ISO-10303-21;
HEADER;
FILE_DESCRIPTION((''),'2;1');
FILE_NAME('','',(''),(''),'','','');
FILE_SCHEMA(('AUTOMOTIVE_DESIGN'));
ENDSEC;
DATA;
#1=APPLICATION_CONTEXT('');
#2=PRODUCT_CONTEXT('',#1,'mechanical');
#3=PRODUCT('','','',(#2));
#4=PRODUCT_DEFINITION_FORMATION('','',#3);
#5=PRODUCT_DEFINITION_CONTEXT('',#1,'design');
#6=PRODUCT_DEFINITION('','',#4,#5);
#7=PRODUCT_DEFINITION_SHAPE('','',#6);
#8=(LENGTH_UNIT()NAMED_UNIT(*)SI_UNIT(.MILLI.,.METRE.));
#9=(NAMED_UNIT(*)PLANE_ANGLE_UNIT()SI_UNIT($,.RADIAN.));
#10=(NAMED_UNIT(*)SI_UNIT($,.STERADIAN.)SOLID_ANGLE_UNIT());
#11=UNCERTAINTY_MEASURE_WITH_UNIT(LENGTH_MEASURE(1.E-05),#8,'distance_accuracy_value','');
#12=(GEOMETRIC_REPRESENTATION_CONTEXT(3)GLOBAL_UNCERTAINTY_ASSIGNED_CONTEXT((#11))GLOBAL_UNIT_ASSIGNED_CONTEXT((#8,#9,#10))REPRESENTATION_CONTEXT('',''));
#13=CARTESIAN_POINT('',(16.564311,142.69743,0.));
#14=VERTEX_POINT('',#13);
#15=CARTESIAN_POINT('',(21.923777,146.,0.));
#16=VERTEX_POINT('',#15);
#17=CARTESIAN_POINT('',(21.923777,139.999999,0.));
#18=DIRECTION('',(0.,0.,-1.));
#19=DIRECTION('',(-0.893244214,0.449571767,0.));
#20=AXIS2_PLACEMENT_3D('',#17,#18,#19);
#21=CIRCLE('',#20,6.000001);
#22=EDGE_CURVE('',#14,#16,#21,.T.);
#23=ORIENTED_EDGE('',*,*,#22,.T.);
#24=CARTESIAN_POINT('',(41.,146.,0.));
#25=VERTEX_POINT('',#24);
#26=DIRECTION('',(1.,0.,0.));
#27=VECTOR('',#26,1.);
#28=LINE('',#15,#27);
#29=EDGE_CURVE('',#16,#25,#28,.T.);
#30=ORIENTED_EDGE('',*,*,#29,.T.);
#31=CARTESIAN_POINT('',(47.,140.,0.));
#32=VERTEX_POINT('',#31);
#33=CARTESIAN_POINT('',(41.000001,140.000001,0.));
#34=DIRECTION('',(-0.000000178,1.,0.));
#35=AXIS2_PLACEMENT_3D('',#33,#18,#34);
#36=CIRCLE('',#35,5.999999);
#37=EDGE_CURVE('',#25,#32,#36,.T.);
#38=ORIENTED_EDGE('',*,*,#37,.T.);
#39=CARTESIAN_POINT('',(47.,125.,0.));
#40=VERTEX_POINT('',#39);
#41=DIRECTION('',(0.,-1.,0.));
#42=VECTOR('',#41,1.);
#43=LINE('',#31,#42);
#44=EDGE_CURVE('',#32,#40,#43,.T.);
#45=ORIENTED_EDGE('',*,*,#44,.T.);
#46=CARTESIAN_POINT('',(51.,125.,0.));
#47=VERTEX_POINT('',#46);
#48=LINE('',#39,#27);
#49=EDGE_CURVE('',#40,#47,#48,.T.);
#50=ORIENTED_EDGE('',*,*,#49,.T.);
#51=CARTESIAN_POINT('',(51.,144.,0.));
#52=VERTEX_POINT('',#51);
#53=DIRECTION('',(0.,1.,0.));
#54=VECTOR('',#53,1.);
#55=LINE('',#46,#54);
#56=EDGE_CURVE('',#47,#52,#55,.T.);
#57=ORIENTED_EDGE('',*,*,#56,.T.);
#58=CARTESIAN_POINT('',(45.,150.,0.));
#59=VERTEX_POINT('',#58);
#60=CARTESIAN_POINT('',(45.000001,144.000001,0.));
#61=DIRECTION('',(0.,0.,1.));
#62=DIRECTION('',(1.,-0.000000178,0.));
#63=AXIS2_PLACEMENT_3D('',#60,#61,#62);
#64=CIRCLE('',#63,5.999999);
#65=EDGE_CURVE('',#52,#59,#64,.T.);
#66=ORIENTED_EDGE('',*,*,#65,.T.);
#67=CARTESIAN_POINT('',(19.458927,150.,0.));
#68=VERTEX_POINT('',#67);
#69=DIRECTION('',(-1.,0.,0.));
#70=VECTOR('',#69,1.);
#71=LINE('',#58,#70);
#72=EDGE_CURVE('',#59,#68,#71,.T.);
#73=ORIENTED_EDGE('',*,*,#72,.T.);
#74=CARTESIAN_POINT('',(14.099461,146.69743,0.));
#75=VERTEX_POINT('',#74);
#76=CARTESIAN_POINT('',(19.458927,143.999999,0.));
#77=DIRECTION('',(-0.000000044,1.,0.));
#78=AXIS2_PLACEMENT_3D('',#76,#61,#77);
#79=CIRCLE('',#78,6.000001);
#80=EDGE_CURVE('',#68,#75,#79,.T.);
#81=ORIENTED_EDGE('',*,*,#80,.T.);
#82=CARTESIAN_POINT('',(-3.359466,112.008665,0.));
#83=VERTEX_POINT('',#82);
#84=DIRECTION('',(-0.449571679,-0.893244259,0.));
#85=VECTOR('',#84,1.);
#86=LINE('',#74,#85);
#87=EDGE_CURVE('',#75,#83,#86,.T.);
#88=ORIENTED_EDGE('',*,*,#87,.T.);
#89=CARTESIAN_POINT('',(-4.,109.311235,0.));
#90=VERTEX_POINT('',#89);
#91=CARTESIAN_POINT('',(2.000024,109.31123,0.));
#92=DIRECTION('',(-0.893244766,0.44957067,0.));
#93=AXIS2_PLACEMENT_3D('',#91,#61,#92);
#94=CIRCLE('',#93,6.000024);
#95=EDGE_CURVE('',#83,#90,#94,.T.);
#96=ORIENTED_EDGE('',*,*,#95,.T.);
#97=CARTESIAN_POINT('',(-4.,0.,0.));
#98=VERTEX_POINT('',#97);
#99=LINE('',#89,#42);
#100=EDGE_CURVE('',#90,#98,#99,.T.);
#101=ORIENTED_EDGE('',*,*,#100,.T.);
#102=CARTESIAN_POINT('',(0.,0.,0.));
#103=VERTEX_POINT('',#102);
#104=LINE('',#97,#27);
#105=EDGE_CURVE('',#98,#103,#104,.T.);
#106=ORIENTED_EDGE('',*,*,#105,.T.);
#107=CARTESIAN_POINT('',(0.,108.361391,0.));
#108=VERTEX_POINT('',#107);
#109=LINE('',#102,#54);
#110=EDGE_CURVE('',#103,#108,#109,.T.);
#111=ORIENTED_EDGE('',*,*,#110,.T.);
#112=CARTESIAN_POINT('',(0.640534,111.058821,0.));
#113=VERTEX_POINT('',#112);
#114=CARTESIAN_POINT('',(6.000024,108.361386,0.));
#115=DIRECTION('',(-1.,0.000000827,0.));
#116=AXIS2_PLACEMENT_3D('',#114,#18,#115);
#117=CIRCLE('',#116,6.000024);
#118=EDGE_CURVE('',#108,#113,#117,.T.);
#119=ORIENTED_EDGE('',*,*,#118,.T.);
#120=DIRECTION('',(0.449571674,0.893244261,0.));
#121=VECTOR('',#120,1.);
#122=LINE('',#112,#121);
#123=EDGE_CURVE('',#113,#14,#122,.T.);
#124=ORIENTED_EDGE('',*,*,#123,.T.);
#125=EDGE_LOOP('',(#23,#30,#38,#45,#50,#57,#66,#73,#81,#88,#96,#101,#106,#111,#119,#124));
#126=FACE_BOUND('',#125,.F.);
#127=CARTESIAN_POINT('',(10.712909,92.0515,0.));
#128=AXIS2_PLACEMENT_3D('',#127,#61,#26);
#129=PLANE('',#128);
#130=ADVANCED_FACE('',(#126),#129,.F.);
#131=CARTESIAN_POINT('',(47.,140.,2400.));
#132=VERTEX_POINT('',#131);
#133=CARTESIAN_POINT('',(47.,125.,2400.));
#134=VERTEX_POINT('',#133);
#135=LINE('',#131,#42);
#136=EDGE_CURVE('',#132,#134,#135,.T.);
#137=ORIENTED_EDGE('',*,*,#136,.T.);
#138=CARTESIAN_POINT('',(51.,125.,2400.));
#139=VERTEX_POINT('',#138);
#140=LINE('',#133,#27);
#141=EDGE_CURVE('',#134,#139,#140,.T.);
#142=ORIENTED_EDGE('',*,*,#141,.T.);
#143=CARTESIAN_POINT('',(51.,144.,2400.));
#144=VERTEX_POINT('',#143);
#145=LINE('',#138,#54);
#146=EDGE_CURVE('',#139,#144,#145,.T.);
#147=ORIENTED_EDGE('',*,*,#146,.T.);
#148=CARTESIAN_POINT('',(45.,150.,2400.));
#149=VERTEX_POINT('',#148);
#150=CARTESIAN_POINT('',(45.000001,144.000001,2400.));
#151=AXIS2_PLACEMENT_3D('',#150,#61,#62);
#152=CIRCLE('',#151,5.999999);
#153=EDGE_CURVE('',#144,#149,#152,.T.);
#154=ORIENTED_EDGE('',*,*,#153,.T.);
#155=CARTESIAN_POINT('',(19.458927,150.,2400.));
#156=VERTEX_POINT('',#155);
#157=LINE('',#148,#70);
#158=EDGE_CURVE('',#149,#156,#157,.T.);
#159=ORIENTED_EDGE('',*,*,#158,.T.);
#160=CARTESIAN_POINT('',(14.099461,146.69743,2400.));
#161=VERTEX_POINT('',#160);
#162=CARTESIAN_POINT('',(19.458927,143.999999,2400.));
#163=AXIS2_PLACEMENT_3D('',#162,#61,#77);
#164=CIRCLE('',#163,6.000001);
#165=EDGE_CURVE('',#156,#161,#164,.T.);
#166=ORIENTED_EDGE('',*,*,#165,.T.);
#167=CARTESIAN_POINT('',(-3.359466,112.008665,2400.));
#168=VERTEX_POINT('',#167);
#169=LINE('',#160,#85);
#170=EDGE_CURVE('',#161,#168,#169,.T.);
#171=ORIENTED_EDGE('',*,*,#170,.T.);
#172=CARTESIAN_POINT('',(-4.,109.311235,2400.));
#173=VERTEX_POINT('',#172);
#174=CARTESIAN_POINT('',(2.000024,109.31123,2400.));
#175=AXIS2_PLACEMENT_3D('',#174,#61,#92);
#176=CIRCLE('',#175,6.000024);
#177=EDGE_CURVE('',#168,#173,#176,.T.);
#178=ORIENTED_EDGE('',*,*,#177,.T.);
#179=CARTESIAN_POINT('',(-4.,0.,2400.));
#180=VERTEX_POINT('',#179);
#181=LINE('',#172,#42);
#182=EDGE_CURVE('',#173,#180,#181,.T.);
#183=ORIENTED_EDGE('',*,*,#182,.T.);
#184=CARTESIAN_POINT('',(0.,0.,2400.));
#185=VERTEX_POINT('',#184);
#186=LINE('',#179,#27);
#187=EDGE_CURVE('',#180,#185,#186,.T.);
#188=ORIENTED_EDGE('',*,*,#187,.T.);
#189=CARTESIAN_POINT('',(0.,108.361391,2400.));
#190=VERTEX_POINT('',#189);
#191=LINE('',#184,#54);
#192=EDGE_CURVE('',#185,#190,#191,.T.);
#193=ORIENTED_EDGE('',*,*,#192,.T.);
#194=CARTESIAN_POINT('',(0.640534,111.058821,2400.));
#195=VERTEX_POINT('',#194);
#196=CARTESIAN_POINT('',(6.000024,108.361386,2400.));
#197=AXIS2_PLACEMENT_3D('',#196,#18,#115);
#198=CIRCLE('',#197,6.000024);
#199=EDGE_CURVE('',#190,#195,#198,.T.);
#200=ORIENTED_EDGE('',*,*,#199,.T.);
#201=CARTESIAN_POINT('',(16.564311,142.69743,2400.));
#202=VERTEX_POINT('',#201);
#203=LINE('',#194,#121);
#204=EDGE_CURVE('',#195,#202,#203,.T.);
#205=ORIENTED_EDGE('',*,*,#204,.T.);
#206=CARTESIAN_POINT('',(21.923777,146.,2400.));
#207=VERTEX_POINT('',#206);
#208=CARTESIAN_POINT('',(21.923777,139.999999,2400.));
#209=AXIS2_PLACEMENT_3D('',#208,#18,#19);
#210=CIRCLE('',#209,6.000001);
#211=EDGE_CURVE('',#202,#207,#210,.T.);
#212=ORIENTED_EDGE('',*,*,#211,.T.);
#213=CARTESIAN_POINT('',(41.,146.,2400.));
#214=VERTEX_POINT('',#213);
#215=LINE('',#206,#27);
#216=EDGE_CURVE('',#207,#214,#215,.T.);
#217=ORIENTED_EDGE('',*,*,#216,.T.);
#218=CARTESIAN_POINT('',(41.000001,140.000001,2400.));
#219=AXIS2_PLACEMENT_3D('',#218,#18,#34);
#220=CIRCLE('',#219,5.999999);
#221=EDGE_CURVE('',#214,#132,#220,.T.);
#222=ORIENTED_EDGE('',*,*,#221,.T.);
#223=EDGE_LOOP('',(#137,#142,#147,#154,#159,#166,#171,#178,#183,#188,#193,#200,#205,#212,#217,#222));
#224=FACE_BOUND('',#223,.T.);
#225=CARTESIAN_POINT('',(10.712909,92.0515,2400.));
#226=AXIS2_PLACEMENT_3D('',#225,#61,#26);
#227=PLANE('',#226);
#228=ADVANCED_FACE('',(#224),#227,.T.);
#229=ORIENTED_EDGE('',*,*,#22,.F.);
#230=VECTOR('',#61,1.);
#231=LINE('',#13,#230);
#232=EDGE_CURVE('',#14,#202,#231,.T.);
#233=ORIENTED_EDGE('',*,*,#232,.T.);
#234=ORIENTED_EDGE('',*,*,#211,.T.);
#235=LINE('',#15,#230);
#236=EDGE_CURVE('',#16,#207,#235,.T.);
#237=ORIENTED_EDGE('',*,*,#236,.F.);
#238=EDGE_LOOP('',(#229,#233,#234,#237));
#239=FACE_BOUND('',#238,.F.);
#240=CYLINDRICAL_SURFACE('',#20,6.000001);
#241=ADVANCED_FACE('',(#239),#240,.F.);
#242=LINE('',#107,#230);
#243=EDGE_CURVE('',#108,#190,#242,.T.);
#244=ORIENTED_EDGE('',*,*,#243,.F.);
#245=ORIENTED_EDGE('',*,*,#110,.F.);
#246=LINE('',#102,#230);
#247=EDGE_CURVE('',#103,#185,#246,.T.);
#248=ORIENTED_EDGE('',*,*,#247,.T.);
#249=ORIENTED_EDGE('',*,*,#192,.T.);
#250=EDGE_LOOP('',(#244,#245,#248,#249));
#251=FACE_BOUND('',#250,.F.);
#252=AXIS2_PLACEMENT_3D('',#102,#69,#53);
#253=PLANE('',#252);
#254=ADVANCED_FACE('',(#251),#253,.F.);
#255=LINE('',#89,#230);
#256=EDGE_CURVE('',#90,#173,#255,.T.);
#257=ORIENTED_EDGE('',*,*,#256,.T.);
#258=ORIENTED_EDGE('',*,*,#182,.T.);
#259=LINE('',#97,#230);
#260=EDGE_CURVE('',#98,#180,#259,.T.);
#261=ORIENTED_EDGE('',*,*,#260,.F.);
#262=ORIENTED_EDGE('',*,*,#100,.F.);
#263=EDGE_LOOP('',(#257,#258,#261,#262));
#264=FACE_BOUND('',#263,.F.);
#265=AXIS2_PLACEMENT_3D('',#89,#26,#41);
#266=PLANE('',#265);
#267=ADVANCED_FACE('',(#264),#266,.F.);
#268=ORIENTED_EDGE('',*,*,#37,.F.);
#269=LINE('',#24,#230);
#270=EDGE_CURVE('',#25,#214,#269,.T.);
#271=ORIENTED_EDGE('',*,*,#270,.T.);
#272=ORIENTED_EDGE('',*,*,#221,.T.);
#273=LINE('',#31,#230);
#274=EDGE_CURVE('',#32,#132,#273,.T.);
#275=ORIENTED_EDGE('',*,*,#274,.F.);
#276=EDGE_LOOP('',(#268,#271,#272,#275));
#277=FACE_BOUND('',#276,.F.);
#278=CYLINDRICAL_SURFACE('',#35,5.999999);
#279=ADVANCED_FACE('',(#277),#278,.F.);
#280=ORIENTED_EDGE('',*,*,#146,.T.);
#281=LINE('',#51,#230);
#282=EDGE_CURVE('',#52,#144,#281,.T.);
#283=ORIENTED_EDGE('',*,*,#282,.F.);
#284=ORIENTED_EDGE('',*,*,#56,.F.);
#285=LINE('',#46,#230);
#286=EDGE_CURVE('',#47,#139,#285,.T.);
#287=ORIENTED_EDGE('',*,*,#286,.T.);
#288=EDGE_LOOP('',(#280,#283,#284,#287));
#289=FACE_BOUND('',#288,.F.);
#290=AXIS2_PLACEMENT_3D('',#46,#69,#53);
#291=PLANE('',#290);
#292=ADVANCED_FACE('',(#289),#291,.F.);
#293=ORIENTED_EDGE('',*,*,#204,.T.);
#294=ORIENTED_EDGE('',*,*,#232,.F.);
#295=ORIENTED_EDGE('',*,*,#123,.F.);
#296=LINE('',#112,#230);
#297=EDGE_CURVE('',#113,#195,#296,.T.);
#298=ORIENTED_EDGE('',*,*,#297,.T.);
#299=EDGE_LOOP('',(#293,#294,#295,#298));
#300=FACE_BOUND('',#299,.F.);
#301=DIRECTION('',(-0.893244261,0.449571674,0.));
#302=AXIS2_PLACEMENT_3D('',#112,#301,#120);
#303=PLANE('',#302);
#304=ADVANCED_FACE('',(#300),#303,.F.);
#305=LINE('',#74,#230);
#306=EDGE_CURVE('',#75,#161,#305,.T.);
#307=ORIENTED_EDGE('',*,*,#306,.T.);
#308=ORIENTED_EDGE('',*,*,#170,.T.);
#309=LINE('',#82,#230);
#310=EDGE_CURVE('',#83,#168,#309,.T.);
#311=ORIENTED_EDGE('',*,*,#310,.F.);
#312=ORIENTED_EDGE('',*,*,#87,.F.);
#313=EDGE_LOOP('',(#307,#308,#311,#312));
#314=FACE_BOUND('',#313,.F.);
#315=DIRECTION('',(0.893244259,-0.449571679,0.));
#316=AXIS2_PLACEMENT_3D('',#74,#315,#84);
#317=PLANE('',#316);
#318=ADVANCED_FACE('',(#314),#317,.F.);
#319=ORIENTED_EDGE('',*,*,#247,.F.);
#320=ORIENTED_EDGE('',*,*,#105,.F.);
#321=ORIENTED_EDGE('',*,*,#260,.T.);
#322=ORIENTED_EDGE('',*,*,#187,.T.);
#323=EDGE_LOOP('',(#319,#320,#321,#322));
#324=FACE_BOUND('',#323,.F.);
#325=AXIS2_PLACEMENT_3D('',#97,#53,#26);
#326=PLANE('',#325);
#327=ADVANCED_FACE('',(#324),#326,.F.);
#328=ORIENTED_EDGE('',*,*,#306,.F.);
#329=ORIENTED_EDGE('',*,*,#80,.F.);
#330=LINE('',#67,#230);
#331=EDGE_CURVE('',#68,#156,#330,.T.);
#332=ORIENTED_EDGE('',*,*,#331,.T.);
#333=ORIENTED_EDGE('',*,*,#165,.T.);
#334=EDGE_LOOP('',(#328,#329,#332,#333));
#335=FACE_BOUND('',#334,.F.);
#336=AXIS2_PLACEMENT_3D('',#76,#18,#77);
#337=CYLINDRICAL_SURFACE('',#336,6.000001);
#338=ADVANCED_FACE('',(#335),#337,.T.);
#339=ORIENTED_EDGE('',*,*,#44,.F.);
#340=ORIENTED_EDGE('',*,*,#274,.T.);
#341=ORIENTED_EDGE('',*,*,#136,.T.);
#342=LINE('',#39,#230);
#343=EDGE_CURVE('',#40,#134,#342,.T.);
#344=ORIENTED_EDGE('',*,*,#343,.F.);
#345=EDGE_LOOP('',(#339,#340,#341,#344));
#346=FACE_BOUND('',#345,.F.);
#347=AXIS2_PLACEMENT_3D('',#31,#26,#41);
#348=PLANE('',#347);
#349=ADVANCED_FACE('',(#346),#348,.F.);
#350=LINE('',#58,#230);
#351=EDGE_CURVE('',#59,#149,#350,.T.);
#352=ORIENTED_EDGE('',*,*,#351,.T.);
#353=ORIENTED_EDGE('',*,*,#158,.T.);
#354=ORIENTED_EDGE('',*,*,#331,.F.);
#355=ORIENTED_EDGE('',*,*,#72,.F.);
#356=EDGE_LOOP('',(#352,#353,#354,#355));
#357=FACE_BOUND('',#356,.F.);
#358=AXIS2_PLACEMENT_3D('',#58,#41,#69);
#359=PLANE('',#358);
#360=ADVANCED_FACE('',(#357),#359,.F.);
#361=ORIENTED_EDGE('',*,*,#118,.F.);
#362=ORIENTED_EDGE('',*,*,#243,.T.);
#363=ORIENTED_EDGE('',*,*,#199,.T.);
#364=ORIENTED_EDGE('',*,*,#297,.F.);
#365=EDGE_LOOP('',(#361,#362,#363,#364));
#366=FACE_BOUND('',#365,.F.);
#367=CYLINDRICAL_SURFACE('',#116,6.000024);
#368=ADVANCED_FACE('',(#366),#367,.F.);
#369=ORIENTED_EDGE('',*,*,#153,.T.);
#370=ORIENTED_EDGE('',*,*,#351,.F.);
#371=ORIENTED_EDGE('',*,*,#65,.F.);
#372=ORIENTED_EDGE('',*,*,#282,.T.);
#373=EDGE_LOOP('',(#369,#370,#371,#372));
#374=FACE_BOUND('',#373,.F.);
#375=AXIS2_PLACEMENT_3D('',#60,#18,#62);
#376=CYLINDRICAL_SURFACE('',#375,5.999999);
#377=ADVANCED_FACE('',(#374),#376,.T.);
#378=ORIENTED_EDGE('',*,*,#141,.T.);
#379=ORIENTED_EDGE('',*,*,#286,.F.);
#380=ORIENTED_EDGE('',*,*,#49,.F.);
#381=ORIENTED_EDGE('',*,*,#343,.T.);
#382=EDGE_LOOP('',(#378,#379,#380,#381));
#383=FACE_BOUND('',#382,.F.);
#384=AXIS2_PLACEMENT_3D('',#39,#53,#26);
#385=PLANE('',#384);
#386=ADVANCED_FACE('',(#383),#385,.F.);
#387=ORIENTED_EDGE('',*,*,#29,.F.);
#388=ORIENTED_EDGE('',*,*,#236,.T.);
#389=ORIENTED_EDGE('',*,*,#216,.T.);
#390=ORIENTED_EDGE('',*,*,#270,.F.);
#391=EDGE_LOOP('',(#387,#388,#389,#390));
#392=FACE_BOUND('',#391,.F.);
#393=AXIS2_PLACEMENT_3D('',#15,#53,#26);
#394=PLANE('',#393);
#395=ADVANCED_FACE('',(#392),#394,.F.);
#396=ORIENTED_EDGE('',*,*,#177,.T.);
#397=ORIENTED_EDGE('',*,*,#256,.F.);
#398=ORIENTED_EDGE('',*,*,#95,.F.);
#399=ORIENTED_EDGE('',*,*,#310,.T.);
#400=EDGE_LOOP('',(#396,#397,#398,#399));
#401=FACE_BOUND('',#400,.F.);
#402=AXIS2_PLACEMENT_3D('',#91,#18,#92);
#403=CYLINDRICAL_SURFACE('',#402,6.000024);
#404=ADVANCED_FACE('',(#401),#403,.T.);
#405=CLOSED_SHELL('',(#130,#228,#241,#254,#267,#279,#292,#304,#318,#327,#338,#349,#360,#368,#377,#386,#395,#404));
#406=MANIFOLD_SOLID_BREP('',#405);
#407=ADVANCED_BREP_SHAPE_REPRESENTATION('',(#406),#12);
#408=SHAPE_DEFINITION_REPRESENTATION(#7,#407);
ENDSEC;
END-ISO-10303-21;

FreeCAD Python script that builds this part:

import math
import FreeCAD as App
import Part
import Sketcher

V = App.Vector
Q = App.Units.Quantity

doc = App.newDocument("Part")
body = doc.addObject("PartDesign::Body", "Body")

# Sketch on XY plane
sketch1 = body.newObject("Sketcher::SketchObject", "Sketch")
sketch1.AttachmentSupport = (doc.getObject("XY_Plane"), [""])
sketch1.MapMode = "FlatFace"
sketch1.addGeometry([
    Part.LineSegment(V(-4, 0, 0), V(0, 0, 0)),  # 0
    Part.LineSegment(V(0, 0, 0), V(0, 108.4, 0)),  # 1
    Part.ArcOfCircle(Part.Circle(V(6, 108.4, 0), V(0, 0, 1), 6), math.radians(153), math.radians(180)),  # 2
    Part.LineSegment(V(0.6, 111.1, 0), V(16.6, 142.7, 0)),  # 3
    Part.ArcOfCircle(Part.Circle(V(21.9, 140, 0), V(0, 0, 1), 6), math.radians(90), math.radians(153)),  # 4
    Part.LineSegment(V(21.9, 146, 0), V(41, 146, 0)),  # 5
    Part.ArcOfCircle(Part.Circle(V(41, 140, 0), V(0, 0, 1), 6), math.radians(0), math.radians(90)),  # 6
    Part.LineSegment(V(47, 140, 0), V(47, 125, 0)),  # 7
    Part.LineSegment(V(47, 125, 0), V(51, 125, 0)),  # 8
    Part.LineSegment(V(51, 125, 0), V(51, 144, 0)),  # 9
    Part.ArcOfCircle(Part.Circle(V(45, 144, 0), V(0, 0, 1), 6), math.radians(0), math.radians(90)),  # 10
    Part.LineSegment(V(45, 150, 0), V(19.5, 150, 0)),  # 11
    Part.ArcOfCircle(Part.Circle(V(19.5, 144, 0), V(0, 0, 1), 6), math.radians(90), math.radians(153)),  # 12
    Part.LineSegment(V(14.1, 146.7, 0), V(-3.4, 112, 0)),  # 13
    Part.ArcOfCircle(Part.Circle(V(2, 109.3, 0), V(0, 0, 1), 6), math.radians(153), math.radians(180)),  # 14
    Part.LineSegment(V(-4, 109.3, 0), V(-4, 0, 0)),  # 15
], False)
sketch1.addConstraint([
    Sketcher.Constraint("Coincident", 0, 2, 1, 1),
    Sketcher.Constraint("Tangent", 1, 2, 2, 2),
    Sketcher.Constraint("Tangent", 2, 1, 3, 1),
    Sketcher.Constraint("Tangent", 3, 2, 4, 2),
    Sketcher.Constraint("Tangent", 4, 1, 5, 1),
    Sketcher.Constraint("Tangent", 5, 2, 6, 2),
    Sketcher.Constraint("Tangent", 6, 1, 7, 1),
    Sketcher.Constraint("Coincident", 7, 2, 8, 1),
    Sketcher.Constraint("Coincident", 8, 2, 9, 1),
    Sketcher.Constraint("Tangent", 9, 2, 10, 1),
    Sketcher.Constraint("Tangent", 10, 2, 11, 1),
    Sketcher.Constraint("Tangent", 11, 2, 12, 1),
    Sketcher.Constraint("Tangent", 12, 2, 13, 1),
    Sketcher.Constraint("Tangent", 13, 2, 14, 1),
    Sketcher.Constraint("Tangent", 14, 2, 15, 1),
    Sketcher.Constraint("Coincident", 15, 2, 0, 1),
    Sketcher.Constraint("Horizontal", 0),
    Sketcher.Constraint("Vertical", 1),
    Sketcher.Constraint("Horizontal", 5),
    Sketcher.Constraint("Vertical", 7),
    Sketcher.Constraint("Horizontal", 8),
    Sketcher.Constraint("Vertical", 9),
    Sketcher.Constraint("Horizontal", 11),
    Sketcher.Constraint("Vertical", 15),
    Sketcher.Constraint("Coincident", 0, 2, -1, 1),
    Sketcher.Constraint("Equal", 6, 10),
    Sketcher.Constraint("Equal", 4, 12),
    Sketcher.Constraint("Equal", 2, 14),
    Sketcher.Constraint("Parallel", 3, 13),
    Sketcher.Constraint("Horizontal", 4, 3, 6, 1),
    Sketcher.Constraint("Equal", 0, 8),
    Sketcher.Constraint("Radius", 4, Q("6.000001 mm")),
    Sketcher.Constraint("DistanceX", 0, 1, 0, 2, Q("4 mm")),
    Sketcher.Constraint("DistanceY", 7, 2, 7, 1, Q("15 mm")),
    Sketcher.Constraint("DistanceY", 9, 1, 9, 2, Q("19 mm")),
    Sketcher.Constraint("DistanceY", -1, 1, 4, 3, Q("139.999999 mm")),
    Sketcher.Constraint("DistanceX", -1, 1, 6, 3, Q("41.000001 mm")),
    Sketcher.Constraint("Radius", 2, Q("6.000024 mm")),
    Sketcher.Constraint("DistanceY", 1, 1, 1, 2, Q("108.361391 mm")),
    Sketcher.Constraint("Distance", 13, Q("38.834579 mm")),
    Sketcher.Constraint("DistanceX", 5, 1, 5, 2, Q("19.076223 mm")),
])
pad1 = body.newObject("PartDesign::Pad", "Pad")
pad1.Profile = sketch1
pad1.Length = 2400

doc.recompute()
